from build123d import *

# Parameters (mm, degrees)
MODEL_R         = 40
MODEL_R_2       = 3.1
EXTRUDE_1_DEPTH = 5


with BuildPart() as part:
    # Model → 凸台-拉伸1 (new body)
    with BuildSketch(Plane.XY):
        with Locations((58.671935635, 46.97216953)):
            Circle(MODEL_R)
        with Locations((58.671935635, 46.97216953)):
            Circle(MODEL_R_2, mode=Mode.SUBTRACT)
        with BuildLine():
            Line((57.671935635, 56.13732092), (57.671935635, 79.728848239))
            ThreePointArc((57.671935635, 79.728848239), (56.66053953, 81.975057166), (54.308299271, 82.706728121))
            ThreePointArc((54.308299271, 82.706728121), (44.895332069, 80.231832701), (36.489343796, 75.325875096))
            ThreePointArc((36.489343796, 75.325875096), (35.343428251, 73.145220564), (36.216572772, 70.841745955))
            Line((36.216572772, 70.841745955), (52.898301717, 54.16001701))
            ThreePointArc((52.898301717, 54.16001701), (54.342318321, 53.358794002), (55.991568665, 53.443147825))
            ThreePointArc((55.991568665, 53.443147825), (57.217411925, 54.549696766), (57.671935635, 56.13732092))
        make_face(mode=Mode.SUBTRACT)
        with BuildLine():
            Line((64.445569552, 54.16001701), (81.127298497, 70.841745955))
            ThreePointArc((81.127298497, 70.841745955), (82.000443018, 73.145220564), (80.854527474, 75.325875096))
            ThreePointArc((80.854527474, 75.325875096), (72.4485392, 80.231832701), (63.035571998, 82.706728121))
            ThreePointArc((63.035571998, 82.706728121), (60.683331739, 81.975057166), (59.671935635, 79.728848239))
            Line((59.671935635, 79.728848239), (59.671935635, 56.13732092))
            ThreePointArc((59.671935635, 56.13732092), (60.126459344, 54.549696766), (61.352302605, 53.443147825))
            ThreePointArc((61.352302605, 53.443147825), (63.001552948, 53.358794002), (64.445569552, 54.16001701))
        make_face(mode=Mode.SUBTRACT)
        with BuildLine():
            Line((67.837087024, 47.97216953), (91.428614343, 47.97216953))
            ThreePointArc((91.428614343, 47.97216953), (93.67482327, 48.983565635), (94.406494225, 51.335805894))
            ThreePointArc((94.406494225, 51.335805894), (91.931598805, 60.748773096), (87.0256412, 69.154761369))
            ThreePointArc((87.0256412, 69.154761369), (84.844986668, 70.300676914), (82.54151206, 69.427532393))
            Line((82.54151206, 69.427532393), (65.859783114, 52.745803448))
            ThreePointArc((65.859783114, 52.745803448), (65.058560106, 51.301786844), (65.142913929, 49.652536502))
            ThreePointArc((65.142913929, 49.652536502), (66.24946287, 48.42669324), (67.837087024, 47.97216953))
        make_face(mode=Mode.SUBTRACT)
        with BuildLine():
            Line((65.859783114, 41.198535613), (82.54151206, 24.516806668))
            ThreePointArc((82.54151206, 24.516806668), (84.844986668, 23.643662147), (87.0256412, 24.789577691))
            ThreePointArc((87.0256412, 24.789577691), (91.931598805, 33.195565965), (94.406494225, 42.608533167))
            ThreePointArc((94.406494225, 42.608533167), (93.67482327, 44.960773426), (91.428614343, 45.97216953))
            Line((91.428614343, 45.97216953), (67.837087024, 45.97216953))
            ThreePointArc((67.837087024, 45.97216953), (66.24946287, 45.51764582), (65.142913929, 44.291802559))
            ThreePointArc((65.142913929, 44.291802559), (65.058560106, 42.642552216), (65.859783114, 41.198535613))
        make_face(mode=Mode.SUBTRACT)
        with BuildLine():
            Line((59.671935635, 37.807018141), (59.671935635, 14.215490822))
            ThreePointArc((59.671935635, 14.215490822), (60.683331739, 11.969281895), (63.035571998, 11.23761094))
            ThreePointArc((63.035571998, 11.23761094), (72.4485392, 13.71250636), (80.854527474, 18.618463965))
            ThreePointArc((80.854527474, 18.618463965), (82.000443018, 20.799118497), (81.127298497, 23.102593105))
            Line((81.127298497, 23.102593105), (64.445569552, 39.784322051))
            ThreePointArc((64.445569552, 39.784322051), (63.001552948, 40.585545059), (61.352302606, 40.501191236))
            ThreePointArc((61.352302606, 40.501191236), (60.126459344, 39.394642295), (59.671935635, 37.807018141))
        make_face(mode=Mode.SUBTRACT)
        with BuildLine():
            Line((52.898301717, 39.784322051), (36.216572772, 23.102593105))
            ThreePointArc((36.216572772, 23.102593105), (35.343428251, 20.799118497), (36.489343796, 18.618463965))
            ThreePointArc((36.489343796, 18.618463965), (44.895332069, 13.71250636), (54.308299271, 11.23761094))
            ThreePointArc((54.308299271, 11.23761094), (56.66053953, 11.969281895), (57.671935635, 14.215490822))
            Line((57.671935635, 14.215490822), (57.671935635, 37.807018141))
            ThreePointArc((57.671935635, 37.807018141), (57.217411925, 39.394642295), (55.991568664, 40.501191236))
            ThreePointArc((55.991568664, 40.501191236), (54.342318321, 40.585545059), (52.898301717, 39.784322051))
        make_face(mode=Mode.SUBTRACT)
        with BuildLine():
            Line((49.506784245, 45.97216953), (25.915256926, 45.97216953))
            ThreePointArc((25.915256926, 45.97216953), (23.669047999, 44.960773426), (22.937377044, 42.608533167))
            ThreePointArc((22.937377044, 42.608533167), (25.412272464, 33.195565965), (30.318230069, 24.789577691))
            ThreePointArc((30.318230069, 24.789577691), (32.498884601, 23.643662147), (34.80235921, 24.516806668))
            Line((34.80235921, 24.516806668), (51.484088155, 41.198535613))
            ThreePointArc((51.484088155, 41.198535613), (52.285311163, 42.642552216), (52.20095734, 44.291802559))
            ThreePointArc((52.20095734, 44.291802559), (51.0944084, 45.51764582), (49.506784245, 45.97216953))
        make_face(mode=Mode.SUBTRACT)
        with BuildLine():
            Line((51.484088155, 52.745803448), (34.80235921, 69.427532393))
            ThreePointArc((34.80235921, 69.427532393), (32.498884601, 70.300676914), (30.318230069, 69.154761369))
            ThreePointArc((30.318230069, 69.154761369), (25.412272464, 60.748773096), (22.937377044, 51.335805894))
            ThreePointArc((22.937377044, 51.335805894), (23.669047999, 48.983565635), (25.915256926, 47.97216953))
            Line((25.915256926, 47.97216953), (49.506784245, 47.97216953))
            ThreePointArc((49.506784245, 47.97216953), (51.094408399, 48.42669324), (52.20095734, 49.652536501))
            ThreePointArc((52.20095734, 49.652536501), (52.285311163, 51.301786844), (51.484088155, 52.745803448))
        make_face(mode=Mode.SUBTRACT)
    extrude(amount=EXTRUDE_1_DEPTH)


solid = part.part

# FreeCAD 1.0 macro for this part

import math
import FreeCAD as App
import Part
import Sketcher
Q = App.Units.Quantity

doc = App.newDocument("Part")
body = doc.addObject("PartDesign::Body", "Body")

sketch1 = body.newObject("Sketcher::SketchObject", "Sketch")
sketch1.AttachmentSupport = (doc.getObject("XY_Plane"), [""])
sketch1.MapMode = "FlatFace"
sketch1.addGeometry([
    Part.Circle(App.Vector(58.7, 47, 0), App.Vector(0, 0, 1), 40),
    Part.LineSegment(App.Vector(36.2, 23.1, 0), App.Vector(52.9, 39.8, 0)),
    Part.ArcOfCircle(Part.Circle(App.Vector(55, 37.7, 0), App.Vector(0, 0, 1), 3), math.radians(71), math.radians(135)),
    Part.ArcOfCircle(Part.Circle(App.Vector(54.7, 37.8, 0), App.Vector(0, 0, 1), 3), math.radians(0), math.radians(64)),
    Part.LineSegment(App.Vector(57.7, 37.8, 0), App.Vector(57.7, 14.2, 0)),
    Part.ArcOfCircle(Part.Circle(App.Vector(54.7, 14.2, 0), App.Vector(0, 0, 1), 3), math.radians(-97), math.radians(0)),
    Part.ArcOfCircle(Part.Circle(App.Vector(58.7, 47, 0), App.Vector(0, 0, 1), 36), math.radians(-128), math.radians(-97)),
    Part.ArcOfCircle(Part.Circle(App.Vector(38.3, 21, 0), App.Vector(0, 0, 1), 3), math.radians(135), math.radians(232)),
    Part.LineSegment(App.Vector(25.9, 46, 0), App.Vector(49.5, 46, 0)),
    Part.ArcOfCircle(Part.Circle(App.Vector(49.5, 43, 0), App.Vector(0, 0, 1), 3), math.radians(26), math.radians(90)),
    Part.ArcOfCircle(Part.Circle(App.Vector(49.4, 43.3, 0), App.Vector(0, 0, 1), 3), math.radians(-45), math.radians(19)),
    Part.LineSegment(App.Vector(51.5, 41.2, 0), App.Vector(34.8, 24.5, 0)),
    Part.ArcOfCircle(Part.Circle(App.Vector(32.7, 26.6, 0), App.Vector(0, 0, 1), 3), math.radians(-142), math.radians(-45)),
    Part.ArcOfCircle(Part.Circle(App.Vector(58.7, 47, 0), App.Vector(0, 0, 1), 36), math.radians(-173), math.radians(-142)),
    Part.ArcOfCircle(Part.Circle(App.Vector(25.9, 43, 0), App.Vector(0, 0, 1), 3), math.radians(90), math.radians(187)),
    Part.LineSegment(App.Vector(59.7, 14.2, 0), App.Vector(59.7, 37.8, 0)),
    Part.ArcOfCircle(Part.Circle(App.Vector(62.7, 37.8, 0), App.Vector(0, 0, 1), 3), math.radians(116), math.radians(180)),
    Part.ArcOfCircle(Part.Circle(App.Vector(62.3, 37.7, 0), App.Vector(0, 0, 1), 3), math.radians(45), math.radians(109)),
    Part.LineSegment(App.Vector(64.4, 39.8, 0), App.Vector(81.1, 23.1, 0)),
    Part.ArcOfCircle(Part.Circle(App.Vector(79, 21, 0), App.Vector(0, 0, 1), 3), math.radians(-52), math.radians(45)),
    Part.ArcOfCircle(Part.Circle(App.Vector(58.7, 47, 0), App.Vector(0, 0, 1), 36), math.radians(-83), math.radians(-52)),
    Part.ArcOfCircle(Part.Circle(App.Vector(62.7, 14.2, 0), App.Vector(0, 0, 1), 3), math.radians(180), math.radians(277)),
    Part.Circle(App.Vector(58.7, 47, 0), App.Vector(0, 0, 1), 3.1),
    Part.LineSegment(App.Vector(82.5, 24.5, 0), App.Vector(65.9, 41.2, 0)),
    Part.ArcOfCircle(Part.Circle(App.Vector(68, 43.3, 0), App.Vector(0, 0, 1), 3), math.radians(161), math.radians(225)),
    Part.ArcOfCircle(Part.Circle(App.Vector(67.8, 43, 0), App.Vector(0, 0, 1), 3), math.radians(90), math.radians(154)),
    Part.LineSegment(App.Vector(67.8, 46, 0), App.Vector(91.4, 46, 0)),
    Part.ArcOfCircle(Part.Circle(App.Vector(91.4, 43, 0), App.Vector(0, 0, 1), 3), math.radians(-7), math.radians(90)),
    Part.ArcOfCircle(Part.Circle(App.Vector(58.7, 47, 0), App.Vector(0, 0, 1), 36), math.radians(-38), math.radians(-7)),
    Part.ArcOfCircle(Part.Circle(App.Vector(84.7, 26.6, 0), App.Vector(0, 0, 1), 3), math.radians(-135), math.radians(-38)),
    Part.LineSegment(App.Vector(34.8, 69.4, 0), App.Vector(51.5, 52.7, 0)),
    Part.ArcOfCircle(Part.Circle(App.Vector(49.4, 50.6, 0), App.Vector(0, 0, 1), 3), math.radians(-19), math.radians(45)),
    Part.ArcOfCircle(Part.Circle(App.Vector(49.5, 51, 0), App.Vector(0, 0, 1), 3), math.radians(-90), math.radians(-26)),
    Part.LineSegment(App.Vector(49.5, 48, 0), App.Vector(25.9, 48, 0)),
    Part.ArcOfCircle(Part.Circle(App.Vector(25.9, 51, 0), App.Vector(0, 0, 1), 3), math.radians(173), math.radians(270)),
    Part.ArcOfCircle(Part.Circle(App.Vector(58.7, 47, 0), App.Vector(0, 0, 1), 36), math.radians(142), math.radians(173)),
    Part.ArcOfCircle(Part.Circle(App.Vector(32.7, 67.3, 0), App.Vector(0, 0, 1), 3), math.radians(45), math.radians(142)),
    Part.LineSegment(App.Vector(57.7, 79.7, 0), App.Vector(57.7, 56.1, 0)),
    Part.ArcOfCircle(Part.Circle(App.Vector(54.7, 56.1, 0), App.Vector(0, 0, 1), 3), math.radians(-64), math.radians(0)),
    Part.ArcOfCircle(Part.Circle(App.Vector(55, 56.3, 0), App.Vector(0, 0, 1), 3), math.radians(-135), math.radians(-71)),
    Part.LineSegment(App.Vector(52.9, 54.2, 0), App.Vector(36.2, 70.8, 0)),
    Part.ArcOfCircle(Part.Circle(App.Vector(38.3, 73, 0), App.Vector(0, 0, 1), 3), math.radians(128), math.radians(225)),
    Part.ArcOfCircle(Part.Circle(App.Vector(58.7, 47, 0), App.Vector(0, 0, 1), 36), math.radians(97), math.radians(128)),
    Part.ArcOfCircle(Part.Circle(App.Vector(54.7, 79.7, 0), App.Vector(0, 0, 1), 3), math.radians(0), math.radians(97)),
    Part.LineSegment(App.Vector(91.4, 48, 0), App.Vector(67.8, 48, 0)),
    Part.ArcOfCircle(Part.Circle(App.Vector(67.8, 51, 0), App.Vector(0, 0, 1), 3), math.radians(-154), math.radians(-90)),
    Part.ArcOfCircle(Part.Circle(App.Vector(68, 50.6, 0), App.Vector(0, 0, 1), 3), math.radians(135), math.radians(199)),
    Part.LineSegment(App.Vector(65.9, 52.7, 0), App.Vector(82.5, 69.4, 0)),
    Part.ArcOfCircle(Part.Circle(App.Vector(84.7, 67.3, 0), App.Vector(0, 0, 1), 3), math.radians(38), math.radians(135)),
    Part.ArcOfCircle(Part.Circle(App.Vector(58.7, 47, 0), App.Vector(0, 0, 1), 36), math.radians(7), math.radians(38)),
    Part.ArcOfCircle(Part.Circle(App.Vector(91.4, 51, 0), App.Vector(0, 0, 1), 3), math.radians(-90), math.radians(7)),
    Part.LineSegment(App.Vector(81.1, 70.8, 0), App.Vector(64.4, 54.2, 0)),
    Part.ArcOfCircle(Part.Circle(App.Vector(62.3, 56.3, 0), App.Vector(0, 0, 1), 3), math.radians(-109), math.radians(-45)),
    Part.ArcOfCircle(Part.Circle(App.Vector(62.7, 56.1, 0), App.Vector(0, 0, 1), 3), math.radians(180), math.radians(244)),
    Part.LineSegment(App.Vector(59.7, 56.1, 0), App.Vector(59.7, 79.7, 0)),
    Part.ArcOfCircle(Part.Circle(App.Vector(62.7, 79.7, 0), App.Vector(0, 0, 1), 3), math.radians(83), math.radians(180)),
    Part.ArcOfCircle(Part.Circle(App.Vector(58.7, 47, 0), App.Vector(0, 0, 1), 36), math.radians(52), math.radians(83)),
    Part.ArcOfCircle(Part.Circle(App.Vector(79, 73, 0), App.Vector(0, 0, 1), 3), math.radians(-45), math.radians(52)),
], False)
sketch1.addConstraint([
    Sketcher.Constraint("Tangent", 1, 2, 2, 2),
    Sketcher.Constraint("Coincident", 2, 1, 3, 2),
    Sketcher.Constraint("Tangent", 3, 1, 4, 1),
    Sketcher.Constraint("Tangent", 4, 2, 5, 2),
    Sketcher.Constraint("Tangent", 5, 1, 6, 2),
    Sketcher.Constraint("Tangent", 6, 1, 7, 2),
    Sketcher.Constraint("Tangent", 7, 1, 1, 1),
    Sketcher.Constraint("Tangent", 8, 2, 9, 2),
    Sketcher.Constraint("Coincident", 9, 1, 10, 2),
    Sketcher.Constraint("Tangent", 10, 1, 11, 1),
    Sketcher.Constraint("Tangent", 11, 2, 12, 2),
    Sketcher.Constraint("Tangent", 12, 1, 13, 2),
    Sketcher.Constraint("Tangent", 13, 1, 14, 2),
    Sketcher.Constraint("Tangent", 14, 1, 8, 1),
    Sketcher.Constraint("Tangent", 15, 2, 16, 2),
    Sketcher.Constraint("Coincident", 16, 1, 17, 2),
    Sketcher.Constraint("Tangent", 17, 1, 18, 1),
    Sketcher.Constraint("Tangent", 18, 2, 19, 2),
    Sketcher.Constraint("Tangent", 19, 1, 20, 2),
    Sketcher.Constraint("Tangent", 20, 1, 21, 2),
    Sketcher.Constraint("Tangent", 21, 1, 15, 1),
    Sketcher.Constraint("Tangent", 23, 2, 24, 2),
    Sketcher.Constraint("Coincident", 24, 1, 25, 2),
    Sketcher.Constraint("Tangent", 25, 1, 26, 1),
    Sketcher.Constraint("Tangent", 26, 2, 27, 2),
    Sketcher.Constraint("Tangent", 27, 1, 28, 2),
    Sketcher.Constraint("Tangent", 28, 1, 29, 2),
    Sketcher.Constraint("Tangent", 29, 1, 23, 1),
    Sketcher.Constraint("Tangent", 30, 2, 31, 2),
    Sketcher.Constraint("Coincident", 31, 1, 32, 2),
    Sketcher.Constraint("Tangent", 32, 1, 33, 1),
    Sketcher.Constraint("Tangent", 33, 2, 34, 2),
    Sketcher.Constraint("Tangent", 34, 1, 35, 2),
    Sketcher.Constraint("Tangent", 35, 1, 36, 2),
    Sketcher.Constraint("Tangent", 36, 1, 30, 1),
    Sketcher.Constraint("Tangent", 37, 2, 38, 2),
    Sketcher.Constraint("Coincident", 38, 1, 39, 2),
    Sketcher.Constraint("Tangent", 39, 1, 40, 1),
    Sketcher.Constraint("Tangent", 40, 2, 41, 2),
    Sketcher.Constraint("Tangent", 41, 1, 42, 2),
    Sketcher.Constraint("Tangent", 42, 1, 43, 2),
    Sketcher.Constraint("Tangent", 43, 1, 37, 1),
    Sketcher.Constraint("Tangent", 44, 2, 45, 2),
    Sketcher.Constraint("Coincident", 45, 1, 46, 2),
    Sketcher.Constraint("Tangent", 46, 1, 47, 1),
    Sketcher.Constraint("Tangent", 47, 2, 48, 2),
    Sketcher.Constraint("Tangent", 48, 1, 49, 2),
    Sketcher.Constraint("Tangent", 49, 1, 50, 2),
    Sketcher.Constraint("Tangent", 50, 1, 44, 1),
    Sketcher.Constraint("Tangent", 51, 2, 52, 2),
    Sketcher.Constraint("Coincident", 52, 1, 53, 2),
    Sketcher.Constraint("Tangent", 53, 1, 54, 1),
    Sketcher.Constraint("Tangent", 54, 2, 55, 2),
    Sketcher.Constraint("Tangent", 55, 1, 56, 2),
    Sketcher.Constraint("Tangent", 56, 1, 57, 2),
    Sketcher.Constraint("Tangent", 57, 1, 51, 1),
    Sketcher.Constraint("Vertical", 4),
    Sketcher.Constraint("Horizontal", 8),
    Sketcher.Constraint("Vertical", 15),
    Sketcher.Constraint("Horizontal", 26),
    Sketcher.Constraint("Horizontal", 33),
    Sketcher.Constraint("Vertical", 37),
    Sketcher.Constraint("Horizontal", 44),
    Sketcher.Constraint("Vertical", 54),
    Sketcher.Constraint("Coincident", 6, 3, 0, 3),
    Sketcher.Constraint("Coincident", 13, 3, 0, 3),
    Sketcher.Constraint("Coincident", 20, 3, 0, 3),
    Sketcher.Constraint("Coincident", 22, 3, 0, 3),
    Sketcher.Constraint("Coincident", 28, 3, 0, 3),
    Sketcher.Constraint("Coincident", 35, 3, 0, 3),
    Sketcher.Constraint("Coincident", 42, 3, 0, 3),
    Sketcher.Constraint("Coincident", 49, 3, 0, 3),
    Sketcher.Constraint("Coincident", 56, 3, 0, 3),
    Sketcher.Constraint("Equal", 2, 3),
    Sketcher.Constraint("Equal", 3, 5),
    Sketcher.Constraint("Equal", 5, 7),
    Sketcher.Constraint("Equal", 7, 9),
    Sketcher.Constraint("Equal", 9, 10),
    Sketcher.Constraint("Equal", 10, 12),
    Sketcher.Constraint("Equal", 6, 13),
    Sketcher.Constraint("Equal", 12, 14),
    Sketcher.Constraint("Equal", 14, 16),
    Sketcher.Constraint("Equal", 16, 17),
    Sketcher.Constraint("Equal", 17, 19),
    Sketcher.Constraint("Equal", 13, 20),
    Sketcher.Constraint("Equal", 19, 21),
    Sketcher.Constraint("Equal", 21, 24),
    Sketcher.Constraint("Equal", 24, 25),
    Sketcher.Constraint("Equal", 25, 27),
    Sketcher.Constraint("Equal", 20, 28),
    Sketcher.Constraint("Equal", 27, 29),
    Sketcher.Constraint("Equal", 29, 31),
    Sketcher.Constraint("Equal", 31, 32),
    Sketcher.Constraint("Equal", 32, 34),
    Sketcher.Constraint("Equal", 28, 35),
    Sketcher.Constraint("Equal", 34, 36),
    Sketcher.Constraint("Equal", 36, 38),
    Sketcher.Constraint("Equal", 38, 39),
    Sketcher.Constraint("Equal", 39, 41),
    Sketcher.Constraint("Equal", 35, 42),
    Sketcher.Constraint("Equal", 41, 43),
    Sketcher.Constraint("Equal", 43, 45),
    Sketcher.Constraint("Equal", 45, 46),
    Sketcher.Constraint("Equal", 46, 48),
    Sketcher.Constraint("Equal", 42, 49),
    Sketcher.Constraint("Equal", 48, 50),
    Sketcher.Constraint("Equal", 50, 52),
    Sketcher.Constraint("Equal", 52, 53),
    Sketcher.Constraint("Equal", 53, 55),
    Sketcher.Constraint("Equal", 49, 56),
    Sketcher.Constraint("Equal", 55, 57),
    Sketcher.Constraint("Parallel", 1, 11),
    Sketcher.Constraint("Perpendicular", 11, 18),
    Sketcher.Constraint("Parallel", 18, 23),
    Sketcher.Constraint("Parallel", 23, 30),
    Sketcher.Constraint("Parallel", 30, 40),
    Sketcher.Constraint("Perpendicular", 40, 47),
    Sketcher.Constraint("Parallel", 47, 51),
    Sketcher.Constraint("Horizontal", 3, 3, 16, 3),
    Sketcher.Constraint("Horizontal", 2, 3, 17, 3),
    Sketcher.Constraint("Horizontal", 7, 3, 19, 3),
    Sketcher.Constraint("Horizontal", 5, 3, 21, 3),
    Sketcher.Constraint("Horizontal", 10, 3, 24, 3),
    Sketcher.Constraint("Horizontal", 14, 3, 25, 3),
    Sketcher.Constraint("Horizontal", 12, 3, 29, 3),
    Sketcher.Constraint("Horizontal", 34, 3, 45, 3),
    Sketcher.Constraint("Horizontal", 31, 3, 46, 3),
    Sketcher.Constraint("Horizontal", 36, 3, 48, 3),
    Sketcher.Constraint("Horizontal", 39, 3, 52, 3),
    Sketcher.Constraint("Horizontal", 38, 3, 53, 3),
    Sketcher.Constraint("Horizontal", 43, 3, 55, 3),
    Sketcher.Constraint("Horizontal", 41, 3, 57, 3),
    Sketcher.Constraint("Horizontal", 2, 1, 16, 1),
    Sketcher.Constraint("Horizontal", 9, 1, 24, 1),
    Sketcher.Constraint("Horizontal", 31, 1, 45, 1),
    Sketcher.Constraint("Vertical", 10, 3, 31, 3),
    Sketcher.Constraint("Vertical", 9, 3, 32, 3),
    Sketcher.Constraint("Vertical", 14, 3, 34, 3),
    Sketcher.Constraint("Vertical", 12, 3, 36, 3),
    Sketcher.Constraint("Vertical", 5, 3, 38, 3),
    Sketcher.Constraint("Vertical", 2, 3, 39, 3),
    Sketcher.Constraint("Vertical", 7, 3, 41, 3),
    Sketcher.Constraint("Vertical", 2, 1, 38, 1),
    Sketcher.Constraint("Equal", 44, 4),
    Sketcher.Constraint("Equal", 1, 11),
    Sketcher.Constraint("Diameter", 0, Q("80 mm")),
    Sketcher.Constraint("Radius", 2, Q("3 mm")),
    Sketcher.Constraint("Radius", 6, Q("36 mm")),
    Sketcher.Constraint("Diameter", 22, Q("6.2 mm")),
    Sketcher.Constraint("DistanceY", -1, 1, 2, 3, Q("37.663002 mm")),
    Sketcher.Constraint("DistanceX", -1, 1, 1, 2, Q("52.898302 mm")),
    Sketcher.Constraint("DistanceX", -1, 1, 5, 1, Q("54.308299 mm")),
    Sketcher.Constraint("DistanceX", -1, 1, 18, 2, Q("81.127298 mm")),
    Sketcher.Constraint("DistanceX", 8, 1, 8, 2, Q("23.591527 mm")),
    Sketcher.Constraint("DistanceY", -1, 1, 0, 3, Q("46.97217 mm")),
    Sketcher.Constraint("DistanceY", -1, 1, 9, 3, Q("42.97217 mm")),
    Sketcher.Constraint("DistanceX", -1, 1, 12, 3, Q("32.681039 mm")),
])
pad1 = body.newObject("PartDesign::Pad", "Pad")
pad1.Profile = sketch1
pad1.Length = 5

doc.recompute()
